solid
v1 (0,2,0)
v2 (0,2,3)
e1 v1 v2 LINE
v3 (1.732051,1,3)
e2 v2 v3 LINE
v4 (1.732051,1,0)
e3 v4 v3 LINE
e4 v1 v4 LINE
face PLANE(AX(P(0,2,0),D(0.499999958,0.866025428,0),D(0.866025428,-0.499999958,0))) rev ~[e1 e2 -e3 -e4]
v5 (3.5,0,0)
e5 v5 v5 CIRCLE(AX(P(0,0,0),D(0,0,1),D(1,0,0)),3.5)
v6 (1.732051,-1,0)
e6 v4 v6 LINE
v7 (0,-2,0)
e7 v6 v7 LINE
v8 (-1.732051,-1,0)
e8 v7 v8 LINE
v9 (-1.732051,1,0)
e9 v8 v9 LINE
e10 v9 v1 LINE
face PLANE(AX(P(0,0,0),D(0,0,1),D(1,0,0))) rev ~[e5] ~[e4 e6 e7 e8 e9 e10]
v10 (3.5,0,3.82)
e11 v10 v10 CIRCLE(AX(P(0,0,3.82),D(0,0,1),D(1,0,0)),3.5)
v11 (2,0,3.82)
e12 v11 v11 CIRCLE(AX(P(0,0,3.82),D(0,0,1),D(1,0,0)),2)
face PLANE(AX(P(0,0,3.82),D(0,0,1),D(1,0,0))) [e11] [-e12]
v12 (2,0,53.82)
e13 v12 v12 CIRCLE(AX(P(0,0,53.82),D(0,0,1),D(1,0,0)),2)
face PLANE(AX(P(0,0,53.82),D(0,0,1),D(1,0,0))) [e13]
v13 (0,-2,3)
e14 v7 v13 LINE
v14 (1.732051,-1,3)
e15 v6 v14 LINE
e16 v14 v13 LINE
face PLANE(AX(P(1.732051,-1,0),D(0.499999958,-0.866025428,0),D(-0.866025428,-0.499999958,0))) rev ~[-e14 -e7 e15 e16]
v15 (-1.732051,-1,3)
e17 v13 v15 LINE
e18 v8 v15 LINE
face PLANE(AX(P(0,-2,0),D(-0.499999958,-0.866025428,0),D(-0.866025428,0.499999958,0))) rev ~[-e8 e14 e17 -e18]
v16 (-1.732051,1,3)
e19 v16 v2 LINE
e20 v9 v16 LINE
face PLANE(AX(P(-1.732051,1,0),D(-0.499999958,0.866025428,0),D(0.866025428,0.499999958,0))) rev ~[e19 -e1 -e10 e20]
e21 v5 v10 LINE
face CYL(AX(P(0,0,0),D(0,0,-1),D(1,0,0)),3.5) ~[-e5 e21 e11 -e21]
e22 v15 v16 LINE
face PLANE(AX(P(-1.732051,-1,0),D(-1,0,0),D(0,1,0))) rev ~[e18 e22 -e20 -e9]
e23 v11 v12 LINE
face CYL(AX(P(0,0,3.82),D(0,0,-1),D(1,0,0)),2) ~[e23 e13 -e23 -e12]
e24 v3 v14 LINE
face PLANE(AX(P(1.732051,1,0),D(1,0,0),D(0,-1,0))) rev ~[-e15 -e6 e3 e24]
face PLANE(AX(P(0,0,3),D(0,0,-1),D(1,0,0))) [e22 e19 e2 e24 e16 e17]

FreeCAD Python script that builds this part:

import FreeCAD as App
import Part
import Sketcher

V = App.Vector
Q = App.Units.Quantity


def add_polygon(sketch, points):
    """Adds a closed chain of lines whose ends are joined by coincident constraints."""
    first, n = sketch.GeometryCount, len(points)
    for a, b in zip(points, points[1:] + points[:1]):
        sketch.addGeometry(Part.LineSegment(App.Vector(*a, 0), App.Vector(*b, 0)), False)
    for i in range(n):
        sketch.addConstraint(Sketcher.Constraint("Coincident", first + i, 2, first + (i + 1) % n, 1))

doc = App.newDocument("Part")
body = doc.addObject("PartDesign::Body", "Body")

# Sketch on XY plane
sketch1 = doc.addObject("Sketcher::SketchObject", "Sketch")
body.addObject(sketch1)
sketch1.AttachmentSupport = (doc.XY_Plane, [""])
sketch1.MapMode = "FlatFace"
sketch1.addGeometry(Part.Circle(V(0, 0, 0), V(0, 0, 1), 3.5), False)
sketch1.addConstraint(Sketcher.Constraint("Coincident", 0, 3, -1, 1))
sketch1.addConstraint(Sketcher.Constraint("Diameter", 0, Q("7 mm")))
pad1 = doc.addObject("PartDesign::Pad", "Pad")
body.addObject(pad1)
pad1.Profile = sketch1
pad1.Length = 3.82

# Sketch on XY plane
sketch2 = doc.addObject("Sketcher::SketchObject", "Sketch001")
body.addObject(sketch2)
sketch2.AttachmentSupport = (doc.XY_Plane, [""])
sketch2.MapMode = "FlatFace"
sketch2.AttachmentOffset = App.Placement(V(0, 0, 3.82), App.Rotation())
sketch2.addGeometry(Part.Circle(V(0, 0, 0), V(0, 0, 1), 2), False)
sketch2.addConstraint(Sketcher.Constraint("Coincident", 0, 3, -1, 1))
sketch2.addConstraint(Sketcher.Constraint("Diameter", 0, Q("4 mm")))
pad2 = doc.addObject("PartDesign::Pad", "Pad001")
body.addObject(pad2)
pad2.Profile = sketch2
pad2.Length = 50

# Sketch on XY plane
sketch3 = doc.addObject("Sketcher::SketchObject", "Sketch002")
body.addObject(sketch3)
sketch3.AttachmentSupport = (doc.XY_Plane, [""])
sketch3.MapMode = "FlatFace"
add_polygon(sketch3, [(1.7, -1), (0, -2), (-1.7, -1), (-1.7, 1), (0, 2), (1.7, 1)])  # lines 0-5
sketch3.addConstraint(Sketcher.Constraint("Vertical", 2))
sketch3.addConstraint(Sketcher.Constraint("Vertical", 5))
sketch3.addConstraint(Sketcher.Constraint("Symmetric", 0, 2, 3, 2, -1, 1))
sketch3.addConstraint(Sketcher.Constraint("Symmetric", 1, 2, 4, 2, -1, 1))
sketch3.addConstraint(Sketcher.Constraint("PointOnObject", 0, 2, -2))
sketch3.addConstraint(Sketcher.Constraint("Parallel", 0, 3))
sketch3.addConstraint(Sketcher.Constraint("Horizontal", 2, 2, 4, 2))
sketch3.addConstraint(Sketcher.Constraint("DistanceY", 2, 1, 2, 2, Q("2 mm")))
sketch3.addConstraint(Sketcher.Constraint("Angle", 0, Q("-150.000003 deg")))
sketch3.addConstraint(Sketcher.Constraint("Distance", 0, Q("2 mm")))
pocket1 = doc.addObject("PartDesign::Pocket", "Pocket")
body.addObject(pocket1)
pocket1.Profile = sketch3
pocket1.Length = 3
pocket1.Reversed = True

doc.recompute()
